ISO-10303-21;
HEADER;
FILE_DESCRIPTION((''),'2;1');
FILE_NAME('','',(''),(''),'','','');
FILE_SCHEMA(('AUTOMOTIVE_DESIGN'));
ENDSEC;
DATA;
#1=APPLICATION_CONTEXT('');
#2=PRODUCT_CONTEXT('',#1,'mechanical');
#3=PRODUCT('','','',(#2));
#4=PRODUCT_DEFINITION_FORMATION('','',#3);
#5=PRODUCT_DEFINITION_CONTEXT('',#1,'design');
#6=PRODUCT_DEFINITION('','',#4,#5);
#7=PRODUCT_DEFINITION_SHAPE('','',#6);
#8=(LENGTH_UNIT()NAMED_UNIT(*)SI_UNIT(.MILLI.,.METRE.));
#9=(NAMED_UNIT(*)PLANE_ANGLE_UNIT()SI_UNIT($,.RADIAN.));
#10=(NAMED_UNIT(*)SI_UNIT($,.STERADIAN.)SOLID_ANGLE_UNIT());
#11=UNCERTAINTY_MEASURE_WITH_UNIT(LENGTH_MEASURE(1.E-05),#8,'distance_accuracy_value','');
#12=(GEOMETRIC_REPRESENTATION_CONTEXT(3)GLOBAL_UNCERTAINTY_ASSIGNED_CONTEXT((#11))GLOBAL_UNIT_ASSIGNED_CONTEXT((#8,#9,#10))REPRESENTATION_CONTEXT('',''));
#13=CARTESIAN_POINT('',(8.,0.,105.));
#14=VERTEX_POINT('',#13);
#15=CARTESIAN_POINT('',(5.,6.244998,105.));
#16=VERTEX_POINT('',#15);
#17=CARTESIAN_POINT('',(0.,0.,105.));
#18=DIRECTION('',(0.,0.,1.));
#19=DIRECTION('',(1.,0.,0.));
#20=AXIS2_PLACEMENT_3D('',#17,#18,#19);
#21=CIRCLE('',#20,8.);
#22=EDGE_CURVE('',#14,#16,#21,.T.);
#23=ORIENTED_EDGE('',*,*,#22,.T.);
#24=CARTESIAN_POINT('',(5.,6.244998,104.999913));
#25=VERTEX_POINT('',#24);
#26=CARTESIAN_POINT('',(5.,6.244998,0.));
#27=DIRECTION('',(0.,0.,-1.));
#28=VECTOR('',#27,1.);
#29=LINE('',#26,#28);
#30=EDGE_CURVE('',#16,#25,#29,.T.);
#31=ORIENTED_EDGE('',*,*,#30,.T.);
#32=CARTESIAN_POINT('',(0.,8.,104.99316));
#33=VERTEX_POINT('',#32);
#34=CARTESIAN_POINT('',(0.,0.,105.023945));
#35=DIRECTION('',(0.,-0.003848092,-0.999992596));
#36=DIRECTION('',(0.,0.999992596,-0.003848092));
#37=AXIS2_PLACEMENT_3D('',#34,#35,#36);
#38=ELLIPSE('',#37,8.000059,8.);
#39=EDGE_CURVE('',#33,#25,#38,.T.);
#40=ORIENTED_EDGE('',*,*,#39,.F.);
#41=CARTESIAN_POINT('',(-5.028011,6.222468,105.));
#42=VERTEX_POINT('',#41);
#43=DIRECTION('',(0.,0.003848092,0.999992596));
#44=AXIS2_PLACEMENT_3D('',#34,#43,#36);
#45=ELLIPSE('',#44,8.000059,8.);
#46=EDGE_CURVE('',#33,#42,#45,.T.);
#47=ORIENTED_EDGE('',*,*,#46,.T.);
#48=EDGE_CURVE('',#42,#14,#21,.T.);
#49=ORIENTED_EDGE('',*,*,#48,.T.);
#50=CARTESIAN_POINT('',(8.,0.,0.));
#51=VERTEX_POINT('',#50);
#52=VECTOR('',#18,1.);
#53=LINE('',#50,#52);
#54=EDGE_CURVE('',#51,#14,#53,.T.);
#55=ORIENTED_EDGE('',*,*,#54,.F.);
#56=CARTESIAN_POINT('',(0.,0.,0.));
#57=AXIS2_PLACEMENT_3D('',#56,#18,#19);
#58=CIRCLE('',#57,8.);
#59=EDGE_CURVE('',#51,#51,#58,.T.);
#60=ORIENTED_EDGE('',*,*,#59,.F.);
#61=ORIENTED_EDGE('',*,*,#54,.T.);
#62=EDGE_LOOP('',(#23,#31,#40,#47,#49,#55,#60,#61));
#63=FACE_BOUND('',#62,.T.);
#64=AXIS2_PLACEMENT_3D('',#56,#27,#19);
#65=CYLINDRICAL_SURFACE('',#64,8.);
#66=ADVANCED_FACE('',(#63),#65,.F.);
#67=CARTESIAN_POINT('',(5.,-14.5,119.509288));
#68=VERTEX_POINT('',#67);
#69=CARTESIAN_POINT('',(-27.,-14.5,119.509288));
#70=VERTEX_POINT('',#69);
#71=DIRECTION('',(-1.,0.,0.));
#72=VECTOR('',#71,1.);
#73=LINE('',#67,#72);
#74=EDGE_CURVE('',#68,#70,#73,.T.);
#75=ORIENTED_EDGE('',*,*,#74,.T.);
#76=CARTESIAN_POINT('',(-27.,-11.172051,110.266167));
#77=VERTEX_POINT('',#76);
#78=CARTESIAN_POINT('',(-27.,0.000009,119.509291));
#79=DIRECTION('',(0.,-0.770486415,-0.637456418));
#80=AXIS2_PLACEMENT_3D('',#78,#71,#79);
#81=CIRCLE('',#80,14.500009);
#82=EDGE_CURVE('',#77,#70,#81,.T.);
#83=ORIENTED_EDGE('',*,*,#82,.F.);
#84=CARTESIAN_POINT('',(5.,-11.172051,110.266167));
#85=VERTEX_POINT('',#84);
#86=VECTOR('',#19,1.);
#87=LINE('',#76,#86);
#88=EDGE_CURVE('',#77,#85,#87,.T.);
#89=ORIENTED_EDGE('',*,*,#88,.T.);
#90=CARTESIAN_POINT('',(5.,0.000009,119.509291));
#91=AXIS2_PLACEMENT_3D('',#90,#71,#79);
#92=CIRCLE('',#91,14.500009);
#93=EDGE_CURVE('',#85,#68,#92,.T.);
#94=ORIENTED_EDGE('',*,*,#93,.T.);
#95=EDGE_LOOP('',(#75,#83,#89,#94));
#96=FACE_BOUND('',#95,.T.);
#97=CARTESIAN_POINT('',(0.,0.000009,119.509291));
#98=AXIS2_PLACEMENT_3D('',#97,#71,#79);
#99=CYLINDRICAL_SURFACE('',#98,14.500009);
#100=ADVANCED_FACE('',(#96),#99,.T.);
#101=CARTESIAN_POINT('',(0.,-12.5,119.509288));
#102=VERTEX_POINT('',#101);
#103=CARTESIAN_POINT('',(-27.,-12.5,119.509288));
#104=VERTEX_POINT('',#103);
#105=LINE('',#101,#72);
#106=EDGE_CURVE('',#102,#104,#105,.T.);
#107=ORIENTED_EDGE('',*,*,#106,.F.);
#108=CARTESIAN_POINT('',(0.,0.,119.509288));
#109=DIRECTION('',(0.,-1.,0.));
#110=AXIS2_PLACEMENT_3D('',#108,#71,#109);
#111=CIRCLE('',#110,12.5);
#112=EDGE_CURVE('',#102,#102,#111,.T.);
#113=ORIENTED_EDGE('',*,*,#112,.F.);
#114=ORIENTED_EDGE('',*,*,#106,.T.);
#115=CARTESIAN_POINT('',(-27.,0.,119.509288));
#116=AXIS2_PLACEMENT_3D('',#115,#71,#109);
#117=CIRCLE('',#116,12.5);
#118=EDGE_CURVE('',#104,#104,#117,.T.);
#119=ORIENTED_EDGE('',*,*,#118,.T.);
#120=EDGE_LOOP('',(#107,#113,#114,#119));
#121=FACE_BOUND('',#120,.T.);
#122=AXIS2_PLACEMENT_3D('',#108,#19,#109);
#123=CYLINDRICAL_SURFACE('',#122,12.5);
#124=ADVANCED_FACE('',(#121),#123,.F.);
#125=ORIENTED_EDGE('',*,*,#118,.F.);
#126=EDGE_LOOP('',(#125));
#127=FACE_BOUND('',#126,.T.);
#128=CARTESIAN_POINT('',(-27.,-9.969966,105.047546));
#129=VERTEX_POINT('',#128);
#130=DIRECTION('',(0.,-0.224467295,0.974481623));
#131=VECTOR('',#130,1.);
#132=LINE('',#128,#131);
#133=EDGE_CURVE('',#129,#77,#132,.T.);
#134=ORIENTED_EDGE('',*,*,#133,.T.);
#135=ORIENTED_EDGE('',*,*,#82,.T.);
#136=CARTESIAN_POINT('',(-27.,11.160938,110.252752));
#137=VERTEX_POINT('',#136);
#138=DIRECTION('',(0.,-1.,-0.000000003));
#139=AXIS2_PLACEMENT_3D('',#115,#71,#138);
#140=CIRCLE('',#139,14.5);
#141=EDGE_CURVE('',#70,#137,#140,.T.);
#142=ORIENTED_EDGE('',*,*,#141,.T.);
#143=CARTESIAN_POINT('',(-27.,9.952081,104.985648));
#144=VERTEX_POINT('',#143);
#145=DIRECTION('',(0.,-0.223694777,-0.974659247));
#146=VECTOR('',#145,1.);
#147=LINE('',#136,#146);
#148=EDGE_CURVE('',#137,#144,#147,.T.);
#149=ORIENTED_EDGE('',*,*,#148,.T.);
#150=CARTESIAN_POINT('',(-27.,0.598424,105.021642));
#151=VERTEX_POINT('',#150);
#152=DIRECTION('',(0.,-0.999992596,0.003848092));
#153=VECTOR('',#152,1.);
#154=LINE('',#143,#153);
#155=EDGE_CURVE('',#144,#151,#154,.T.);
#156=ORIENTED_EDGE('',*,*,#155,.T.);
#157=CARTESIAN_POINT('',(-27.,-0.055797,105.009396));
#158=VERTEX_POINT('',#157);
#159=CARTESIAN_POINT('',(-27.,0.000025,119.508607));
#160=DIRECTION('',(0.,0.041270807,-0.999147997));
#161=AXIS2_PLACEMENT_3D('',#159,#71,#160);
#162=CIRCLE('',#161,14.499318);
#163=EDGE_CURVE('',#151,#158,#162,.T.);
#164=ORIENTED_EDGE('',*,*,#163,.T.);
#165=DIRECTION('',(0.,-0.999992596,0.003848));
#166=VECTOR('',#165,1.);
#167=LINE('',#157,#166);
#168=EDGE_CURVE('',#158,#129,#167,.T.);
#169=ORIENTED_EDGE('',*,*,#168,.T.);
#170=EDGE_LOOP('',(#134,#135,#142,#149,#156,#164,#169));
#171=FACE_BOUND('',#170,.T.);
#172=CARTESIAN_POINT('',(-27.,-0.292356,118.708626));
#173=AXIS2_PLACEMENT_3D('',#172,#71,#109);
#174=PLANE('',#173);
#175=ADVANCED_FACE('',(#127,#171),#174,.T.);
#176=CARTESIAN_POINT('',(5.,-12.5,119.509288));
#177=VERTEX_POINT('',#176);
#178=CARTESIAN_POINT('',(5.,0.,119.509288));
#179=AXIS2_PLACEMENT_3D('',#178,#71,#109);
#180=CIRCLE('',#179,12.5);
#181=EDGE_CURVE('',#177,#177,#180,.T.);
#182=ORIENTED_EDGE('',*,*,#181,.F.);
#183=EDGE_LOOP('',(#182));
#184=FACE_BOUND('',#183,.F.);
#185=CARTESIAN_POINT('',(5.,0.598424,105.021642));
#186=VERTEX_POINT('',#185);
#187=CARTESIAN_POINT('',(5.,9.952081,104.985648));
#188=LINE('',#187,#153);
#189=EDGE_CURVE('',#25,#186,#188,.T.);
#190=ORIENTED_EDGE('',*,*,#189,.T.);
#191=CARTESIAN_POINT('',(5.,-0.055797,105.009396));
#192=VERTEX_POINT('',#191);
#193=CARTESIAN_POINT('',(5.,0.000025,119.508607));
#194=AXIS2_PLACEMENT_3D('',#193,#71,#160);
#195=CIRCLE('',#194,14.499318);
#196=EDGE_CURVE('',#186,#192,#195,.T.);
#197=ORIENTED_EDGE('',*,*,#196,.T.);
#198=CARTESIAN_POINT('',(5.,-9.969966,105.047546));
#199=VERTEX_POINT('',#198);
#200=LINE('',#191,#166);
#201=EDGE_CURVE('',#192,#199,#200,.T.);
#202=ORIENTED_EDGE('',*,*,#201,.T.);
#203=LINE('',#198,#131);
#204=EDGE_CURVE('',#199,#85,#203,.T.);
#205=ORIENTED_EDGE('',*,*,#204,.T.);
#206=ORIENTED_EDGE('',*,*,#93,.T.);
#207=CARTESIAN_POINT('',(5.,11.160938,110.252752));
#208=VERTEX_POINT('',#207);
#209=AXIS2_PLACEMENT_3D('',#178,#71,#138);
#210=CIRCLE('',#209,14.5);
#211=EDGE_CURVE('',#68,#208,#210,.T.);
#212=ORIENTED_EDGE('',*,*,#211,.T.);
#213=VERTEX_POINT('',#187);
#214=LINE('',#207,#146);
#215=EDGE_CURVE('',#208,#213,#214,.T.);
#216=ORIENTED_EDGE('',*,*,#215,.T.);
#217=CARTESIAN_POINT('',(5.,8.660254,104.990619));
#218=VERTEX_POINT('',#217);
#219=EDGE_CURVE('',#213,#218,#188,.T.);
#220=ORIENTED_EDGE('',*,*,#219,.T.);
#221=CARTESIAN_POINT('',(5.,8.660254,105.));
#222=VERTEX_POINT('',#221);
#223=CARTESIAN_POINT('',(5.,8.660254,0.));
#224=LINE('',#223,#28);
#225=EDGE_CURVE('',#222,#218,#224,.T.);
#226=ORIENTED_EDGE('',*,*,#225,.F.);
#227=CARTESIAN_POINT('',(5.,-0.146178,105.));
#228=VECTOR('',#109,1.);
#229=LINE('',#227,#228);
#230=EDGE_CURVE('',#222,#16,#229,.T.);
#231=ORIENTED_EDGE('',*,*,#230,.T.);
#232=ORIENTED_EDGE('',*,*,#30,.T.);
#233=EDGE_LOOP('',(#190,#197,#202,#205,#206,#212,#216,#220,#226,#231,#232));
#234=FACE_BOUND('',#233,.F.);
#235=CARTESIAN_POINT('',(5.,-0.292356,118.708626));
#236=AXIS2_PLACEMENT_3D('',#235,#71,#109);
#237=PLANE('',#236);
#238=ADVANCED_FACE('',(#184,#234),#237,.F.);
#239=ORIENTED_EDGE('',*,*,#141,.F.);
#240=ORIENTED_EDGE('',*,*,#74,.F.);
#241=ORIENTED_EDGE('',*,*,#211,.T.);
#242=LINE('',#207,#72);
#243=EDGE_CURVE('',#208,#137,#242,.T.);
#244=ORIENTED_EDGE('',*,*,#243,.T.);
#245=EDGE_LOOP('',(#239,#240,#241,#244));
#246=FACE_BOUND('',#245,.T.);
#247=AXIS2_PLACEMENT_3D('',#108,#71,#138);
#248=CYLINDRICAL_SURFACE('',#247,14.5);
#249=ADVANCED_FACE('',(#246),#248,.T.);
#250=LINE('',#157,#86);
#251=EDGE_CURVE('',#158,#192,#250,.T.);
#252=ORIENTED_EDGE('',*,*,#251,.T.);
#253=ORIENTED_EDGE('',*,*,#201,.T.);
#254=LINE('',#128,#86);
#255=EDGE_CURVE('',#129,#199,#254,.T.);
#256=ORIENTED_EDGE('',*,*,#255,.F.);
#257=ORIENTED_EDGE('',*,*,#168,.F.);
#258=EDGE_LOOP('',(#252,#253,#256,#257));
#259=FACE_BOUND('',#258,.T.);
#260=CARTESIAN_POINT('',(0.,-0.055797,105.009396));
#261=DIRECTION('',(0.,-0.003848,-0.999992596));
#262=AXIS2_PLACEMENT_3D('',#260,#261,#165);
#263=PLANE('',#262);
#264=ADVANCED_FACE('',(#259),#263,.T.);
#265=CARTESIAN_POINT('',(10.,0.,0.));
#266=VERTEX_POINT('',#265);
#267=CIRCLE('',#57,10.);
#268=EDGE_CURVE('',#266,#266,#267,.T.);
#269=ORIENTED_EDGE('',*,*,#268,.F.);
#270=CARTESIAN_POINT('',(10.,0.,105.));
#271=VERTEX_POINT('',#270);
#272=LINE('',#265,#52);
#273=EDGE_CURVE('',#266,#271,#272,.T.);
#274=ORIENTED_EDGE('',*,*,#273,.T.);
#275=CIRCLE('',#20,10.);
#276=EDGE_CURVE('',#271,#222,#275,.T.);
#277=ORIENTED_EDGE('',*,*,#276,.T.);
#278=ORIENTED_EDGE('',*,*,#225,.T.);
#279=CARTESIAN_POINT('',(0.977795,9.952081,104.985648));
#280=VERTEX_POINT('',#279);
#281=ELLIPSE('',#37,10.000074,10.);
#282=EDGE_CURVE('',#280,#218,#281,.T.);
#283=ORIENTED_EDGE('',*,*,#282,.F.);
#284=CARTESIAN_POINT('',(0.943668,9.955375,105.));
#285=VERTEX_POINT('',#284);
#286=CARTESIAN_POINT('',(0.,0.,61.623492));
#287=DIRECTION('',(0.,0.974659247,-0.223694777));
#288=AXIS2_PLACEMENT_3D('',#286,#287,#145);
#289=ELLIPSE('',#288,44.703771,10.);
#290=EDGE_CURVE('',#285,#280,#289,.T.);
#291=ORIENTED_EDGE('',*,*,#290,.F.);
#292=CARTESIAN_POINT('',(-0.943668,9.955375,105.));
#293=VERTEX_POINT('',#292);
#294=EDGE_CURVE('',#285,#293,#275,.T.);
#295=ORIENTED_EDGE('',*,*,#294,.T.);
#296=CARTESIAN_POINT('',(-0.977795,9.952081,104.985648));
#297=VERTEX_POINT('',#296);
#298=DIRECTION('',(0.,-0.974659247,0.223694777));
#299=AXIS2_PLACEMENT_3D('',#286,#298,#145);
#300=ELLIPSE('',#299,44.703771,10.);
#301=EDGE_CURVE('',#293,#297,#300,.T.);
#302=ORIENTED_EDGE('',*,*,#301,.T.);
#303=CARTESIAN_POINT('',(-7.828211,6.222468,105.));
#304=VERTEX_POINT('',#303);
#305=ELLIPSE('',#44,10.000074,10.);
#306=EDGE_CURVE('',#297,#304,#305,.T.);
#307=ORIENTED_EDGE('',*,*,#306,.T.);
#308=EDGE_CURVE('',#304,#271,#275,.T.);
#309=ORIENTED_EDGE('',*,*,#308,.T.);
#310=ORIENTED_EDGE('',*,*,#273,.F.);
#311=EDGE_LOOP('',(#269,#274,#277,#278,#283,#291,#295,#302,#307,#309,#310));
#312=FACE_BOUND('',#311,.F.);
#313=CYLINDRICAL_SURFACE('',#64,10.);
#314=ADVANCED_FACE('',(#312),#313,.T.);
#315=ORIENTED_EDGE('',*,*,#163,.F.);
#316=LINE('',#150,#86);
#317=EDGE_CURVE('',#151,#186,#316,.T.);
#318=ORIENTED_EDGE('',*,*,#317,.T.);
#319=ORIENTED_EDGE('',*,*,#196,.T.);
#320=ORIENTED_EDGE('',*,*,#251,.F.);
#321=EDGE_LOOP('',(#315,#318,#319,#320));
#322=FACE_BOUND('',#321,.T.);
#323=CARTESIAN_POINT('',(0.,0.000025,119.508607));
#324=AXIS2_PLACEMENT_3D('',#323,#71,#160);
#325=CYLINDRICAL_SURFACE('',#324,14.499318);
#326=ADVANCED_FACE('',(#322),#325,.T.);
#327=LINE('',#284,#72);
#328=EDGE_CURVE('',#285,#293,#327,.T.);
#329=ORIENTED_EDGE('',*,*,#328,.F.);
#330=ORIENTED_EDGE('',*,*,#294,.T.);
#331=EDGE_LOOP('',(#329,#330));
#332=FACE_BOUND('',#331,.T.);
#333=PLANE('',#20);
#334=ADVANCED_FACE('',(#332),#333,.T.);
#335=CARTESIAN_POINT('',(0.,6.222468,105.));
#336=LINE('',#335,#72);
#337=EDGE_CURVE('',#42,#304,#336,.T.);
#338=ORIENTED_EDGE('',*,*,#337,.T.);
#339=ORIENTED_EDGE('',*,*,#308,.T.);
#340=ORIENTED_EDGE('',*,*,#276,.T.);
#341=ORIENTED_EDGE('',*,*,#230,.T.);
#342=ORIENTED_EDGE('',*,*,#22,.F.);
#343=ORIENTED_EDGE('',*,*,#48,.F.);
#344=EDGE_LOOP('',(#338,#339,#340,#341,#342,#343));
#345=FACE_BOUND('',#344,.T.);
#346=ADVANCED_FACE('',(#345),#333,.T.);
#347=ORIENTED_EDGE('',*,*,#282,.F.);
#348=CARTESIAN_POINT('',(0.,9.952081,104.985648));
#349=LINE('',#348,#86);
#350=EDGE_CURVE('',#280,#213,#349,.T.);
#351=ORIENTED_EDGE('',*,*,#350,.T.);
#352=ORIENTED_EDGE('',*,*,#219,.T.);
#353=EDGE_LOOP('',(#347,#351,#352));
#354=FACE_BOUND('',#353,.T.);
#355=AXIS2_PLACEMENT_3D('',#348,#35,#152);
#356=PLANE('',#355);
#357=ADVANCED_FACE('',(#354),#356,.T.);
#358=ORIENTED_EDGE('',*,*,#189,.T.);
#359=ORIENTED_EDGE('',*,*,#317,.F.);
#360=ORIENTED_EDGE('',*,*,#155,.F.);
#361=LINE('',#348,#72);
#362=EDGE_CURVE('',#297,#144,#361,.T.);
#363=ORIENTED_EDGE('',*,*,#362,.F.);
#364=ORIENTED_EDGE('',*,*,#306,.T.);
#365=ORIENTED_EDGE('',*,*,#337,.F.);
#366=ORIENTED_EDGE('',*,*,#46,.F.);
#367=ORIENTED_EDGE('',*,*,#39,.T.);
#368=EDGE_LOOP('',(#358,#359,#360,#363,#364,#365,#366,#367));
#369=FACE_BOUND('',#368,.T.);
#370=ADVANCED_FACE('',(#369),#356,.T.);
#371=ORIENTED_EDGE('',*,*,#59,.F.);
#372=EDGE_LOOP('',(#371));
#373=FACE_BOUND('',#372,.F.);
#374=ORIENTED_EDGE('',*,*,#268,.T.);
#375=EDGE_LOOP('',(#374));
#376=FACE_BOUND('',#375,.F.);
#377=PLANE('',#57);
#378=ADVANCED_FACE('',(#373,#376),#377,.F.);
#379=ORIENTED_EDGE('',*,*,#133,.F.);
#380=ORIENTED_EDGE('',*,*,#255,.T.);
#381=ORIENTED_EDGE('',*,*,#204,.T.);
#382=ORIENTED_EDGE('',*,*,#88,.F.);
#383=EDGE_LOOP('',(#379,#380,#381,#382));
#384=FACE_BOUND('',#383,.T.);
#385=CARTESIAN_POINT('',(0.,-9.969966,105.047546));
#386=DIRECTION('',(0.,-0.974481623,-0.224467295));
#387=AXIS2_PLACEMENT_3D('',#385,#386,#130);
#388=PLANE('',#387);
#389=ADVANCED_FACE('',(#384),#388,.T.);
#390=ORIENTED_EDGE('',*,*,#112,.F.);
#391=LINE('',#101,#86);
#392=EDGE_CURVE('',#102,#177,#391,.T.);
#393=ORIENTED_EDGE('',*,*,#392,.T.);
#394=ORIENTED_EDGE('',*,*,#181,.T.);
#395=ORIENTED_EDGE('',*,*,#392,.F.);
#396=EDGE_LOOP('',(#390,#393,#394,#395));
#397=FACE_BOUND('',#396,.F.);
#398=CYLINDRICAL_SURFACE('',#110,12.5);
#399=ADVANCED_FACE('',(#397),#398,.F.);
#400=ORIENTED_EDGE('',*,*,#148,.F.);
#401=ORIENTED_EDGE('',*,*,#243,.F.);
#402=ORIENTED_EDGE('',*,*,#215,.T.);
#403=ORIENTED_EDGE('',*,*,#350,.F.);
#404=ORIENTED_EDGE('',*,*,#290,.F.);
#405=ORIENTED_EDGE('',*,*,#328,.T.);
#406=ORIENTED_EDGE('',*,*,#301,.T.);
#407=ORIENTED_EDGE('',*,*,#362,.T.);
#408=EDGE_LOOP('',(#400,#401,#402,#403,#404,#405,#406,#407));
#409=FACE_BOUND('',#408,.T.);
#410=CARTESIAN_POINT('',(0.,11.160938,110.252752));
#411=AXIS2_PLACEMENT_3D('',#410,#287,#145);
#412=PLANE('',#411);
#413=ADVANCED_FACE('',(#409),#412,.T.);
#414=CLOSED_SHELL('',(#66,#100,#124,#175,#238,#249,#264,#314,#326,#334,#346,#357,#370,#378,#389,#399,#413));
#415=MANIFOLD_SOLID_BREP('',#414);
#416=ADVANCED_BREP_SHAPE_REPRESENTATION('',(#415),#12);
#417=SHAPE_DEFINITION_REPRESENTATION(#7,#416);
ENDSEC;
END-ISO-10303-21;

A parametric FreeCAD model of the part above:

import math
import FreeCAD as App
import Part
import Sketcher

V = App.Vector

doc = App.newDocument("Part")
params = doc.addObject("Spreadsheet::Sheet", "Params")
for row, (alias, value) in enumerate([
    ("sketch1_diameter", "20 mm"),
    ("sketch1_diameter2", "16 mm"),
    ("pad1_length", "105 mm"),
    ("sketch2_diameter", "25 mm"),
    ("sketch2_radius", "14.5 mm"),
    ("pad2_length", "27 mm"),
    ("pad2_length2", "5 mm"),
], start=1):
    params.set(f"A{row}", alias)
    params.set(f"B{row}", "=" + value)
    params.setAlias(f"B{row}", alias)

body = doc.addObject("PartDesign::Body", "Body")

# Sketch on XY plane
sketch1 = body.newObject("Sketcher::SketchObject", "Sketch")
sketch1.AttachmentSupport = (doc.getObject("XY_Plane"), [""])
sketch1.MapMode = "FlatFace"
sketch1.addGeometry([
    Part.Circle(V(0, 0, 0), V(0, 0, 1), 10),
    Part.Circle(V(0, 0, 0), V(0, 0, 1), 8),
], False)
sketch1.addConstraint([
    Sketcher.Constraint("Coincident", 0, 3, -1, 1),
    Sketcher.Constraint("Coincident", 1, 3, -1, 1),
    Sketcher.Constraint("Diameter", 0, 20.0),
    Sketcher.Constraint("Diameter", 1, 16.0),
])
sketch1.setExpression("Constraints[2]", "Params.sketch1_diameter")
sketch1.setExpression("Constraints[3]", "Params.sketch1_diameter2")
pad1 = body.newObject("PartDesign::Pad", "Pad")
pad1.Profile = sketch1
pad1.setExpression("Length", "Params.pad1_length")

# Sketch on YZ plane
sketch2 = body.newObject("Sketcher::SketchObject", "Sketch001")
sketch2.AttachmentSupport = (doc.getObject("YZ_Plane"), [""])
sketch2.MapMode = "FlatFace"
sketch2.addGeometry([
    Part.ArcOfCircle(Part.Circle(V(0.000009, 119.509291, 0), V(0, 0, 1), 14.500009), math.radians(-179.99999), math.radians(-140.397589)),  # 0
    Part.ArcOfCircle(Part.Circle(V(0, 119.509288, 0), V(0, 0, 1), 14.5), math.radians(-39.67126), math.radians(180)),  # 1
    Part.LineSegment(V(11.160938, 110.252752, 0), V(9.952081, 104.985648, 0)),  # 2
    Part.LineSegment(V(9.952081, 104.985648, 0), V(0.598424, 105.021642, 0)),  # 3
    Part.ArcOfCircle(Part.Circle(V(0.000025, 119.508607, 0), V(0, 0, 1), 14.499318), math.radians(-90.220589), math.radians(-87.634685)),  # 4
    Part.LineSegment(V(-0.055797, 105.009396, 0), V(-9.969966, 105.047546, 0)),  # 5
    Part.LineSegment(V(-9.969966, 105.047546, 0), V(-11.172051, 110.266167, 0)),  # 6
    Part.Circle(V(0, 119.509288, 0), V(0, 0, 1), 12.5),  # 7
], False)
sketch2.addConstraint([
    Sketcher.Constraint("Tangent", 0, 1, 1, 2),
    Sketcher.Constraint("Coincident", 1, 1, 2, 1),
    Sketcher.Constraint("Coincident", 2, 2, 3, 1),
    Sketcher.Constraint("Coincident", 3, 2, 4, 2),
    Sketcher.Constraint("Coincident", 4, 1, 5, 1),
    Sketcher.Constraint("Coincident", 5, 2, 6, 1),
    Sketcher.Constraint("Coincident", 6, 2, 0, 2),
    Sketcher.Constraint("Coincident", 7, 3, 0, 3),
    Sketcher.Constraint("PointOnObject", 1, 3, -2),
    Sketcher.Constraint("PointOnObject", 7, 3, -2),
    Sketcher.Constraint("Parallel", 3, 5),
    Sketcher.Constraint("Horizontal", 7, 3, 0, 1),
    Sketcher.Constraint("Diameter", 7, 25.0),
    Sketcher.Constraint("Radius", 1, 14.5),
    Sketcher.Constraint("Radius", 4, 14.499318),
    Sketcher.Constraint("DistanceX", 4, 3, 3, 2, 0.598399),
    Sketcher.Constraint("Distance", 6, 5.355279),
    Sketcher.Constraint("DistanceY", -1, 1, 0, 3, 119.509291),
    Sketcher.Constraint("DistanceX", -1, 1, 1, 1, 11.160938),
    Sketcher.Constraint("DistanceX", -1, 1, 2, 2, 9.952081),
    Sketcher.Constraint("DistanceY", -1, 1, 3, 2, 105.021642),
    Sketcher.Constraint("DistanceX", 6, 2, -1, 1, 11.172051),
    Sketcher.Constraint("DistanceY", 2, 2, 4, 3, 14.522959),
    Sketcher.Constraint("DistanceX", 4, 1, 3, 2, 0.654221),
    Sketcher.Constraint("DistanceX", 4, 1, 2, 2, 10.007878),
])
sketch2.setExpression("Constraints[12]", "Params.sketch2_diameter")
sketch2.setExpression("Constraints[13]", "Params.sketch2_radius")
pad2 = body.newObject("PartDesign::Pad", "Pad001")
pad2.Profile = sketch2
pad2.Type = "TwoLengths"
pad2.setExpression("Length", "Params.pad2_length")
pad2.setExpression("Length2", "Params.pad2_length2")
pad2.Reversed = True

doc.recompute()
